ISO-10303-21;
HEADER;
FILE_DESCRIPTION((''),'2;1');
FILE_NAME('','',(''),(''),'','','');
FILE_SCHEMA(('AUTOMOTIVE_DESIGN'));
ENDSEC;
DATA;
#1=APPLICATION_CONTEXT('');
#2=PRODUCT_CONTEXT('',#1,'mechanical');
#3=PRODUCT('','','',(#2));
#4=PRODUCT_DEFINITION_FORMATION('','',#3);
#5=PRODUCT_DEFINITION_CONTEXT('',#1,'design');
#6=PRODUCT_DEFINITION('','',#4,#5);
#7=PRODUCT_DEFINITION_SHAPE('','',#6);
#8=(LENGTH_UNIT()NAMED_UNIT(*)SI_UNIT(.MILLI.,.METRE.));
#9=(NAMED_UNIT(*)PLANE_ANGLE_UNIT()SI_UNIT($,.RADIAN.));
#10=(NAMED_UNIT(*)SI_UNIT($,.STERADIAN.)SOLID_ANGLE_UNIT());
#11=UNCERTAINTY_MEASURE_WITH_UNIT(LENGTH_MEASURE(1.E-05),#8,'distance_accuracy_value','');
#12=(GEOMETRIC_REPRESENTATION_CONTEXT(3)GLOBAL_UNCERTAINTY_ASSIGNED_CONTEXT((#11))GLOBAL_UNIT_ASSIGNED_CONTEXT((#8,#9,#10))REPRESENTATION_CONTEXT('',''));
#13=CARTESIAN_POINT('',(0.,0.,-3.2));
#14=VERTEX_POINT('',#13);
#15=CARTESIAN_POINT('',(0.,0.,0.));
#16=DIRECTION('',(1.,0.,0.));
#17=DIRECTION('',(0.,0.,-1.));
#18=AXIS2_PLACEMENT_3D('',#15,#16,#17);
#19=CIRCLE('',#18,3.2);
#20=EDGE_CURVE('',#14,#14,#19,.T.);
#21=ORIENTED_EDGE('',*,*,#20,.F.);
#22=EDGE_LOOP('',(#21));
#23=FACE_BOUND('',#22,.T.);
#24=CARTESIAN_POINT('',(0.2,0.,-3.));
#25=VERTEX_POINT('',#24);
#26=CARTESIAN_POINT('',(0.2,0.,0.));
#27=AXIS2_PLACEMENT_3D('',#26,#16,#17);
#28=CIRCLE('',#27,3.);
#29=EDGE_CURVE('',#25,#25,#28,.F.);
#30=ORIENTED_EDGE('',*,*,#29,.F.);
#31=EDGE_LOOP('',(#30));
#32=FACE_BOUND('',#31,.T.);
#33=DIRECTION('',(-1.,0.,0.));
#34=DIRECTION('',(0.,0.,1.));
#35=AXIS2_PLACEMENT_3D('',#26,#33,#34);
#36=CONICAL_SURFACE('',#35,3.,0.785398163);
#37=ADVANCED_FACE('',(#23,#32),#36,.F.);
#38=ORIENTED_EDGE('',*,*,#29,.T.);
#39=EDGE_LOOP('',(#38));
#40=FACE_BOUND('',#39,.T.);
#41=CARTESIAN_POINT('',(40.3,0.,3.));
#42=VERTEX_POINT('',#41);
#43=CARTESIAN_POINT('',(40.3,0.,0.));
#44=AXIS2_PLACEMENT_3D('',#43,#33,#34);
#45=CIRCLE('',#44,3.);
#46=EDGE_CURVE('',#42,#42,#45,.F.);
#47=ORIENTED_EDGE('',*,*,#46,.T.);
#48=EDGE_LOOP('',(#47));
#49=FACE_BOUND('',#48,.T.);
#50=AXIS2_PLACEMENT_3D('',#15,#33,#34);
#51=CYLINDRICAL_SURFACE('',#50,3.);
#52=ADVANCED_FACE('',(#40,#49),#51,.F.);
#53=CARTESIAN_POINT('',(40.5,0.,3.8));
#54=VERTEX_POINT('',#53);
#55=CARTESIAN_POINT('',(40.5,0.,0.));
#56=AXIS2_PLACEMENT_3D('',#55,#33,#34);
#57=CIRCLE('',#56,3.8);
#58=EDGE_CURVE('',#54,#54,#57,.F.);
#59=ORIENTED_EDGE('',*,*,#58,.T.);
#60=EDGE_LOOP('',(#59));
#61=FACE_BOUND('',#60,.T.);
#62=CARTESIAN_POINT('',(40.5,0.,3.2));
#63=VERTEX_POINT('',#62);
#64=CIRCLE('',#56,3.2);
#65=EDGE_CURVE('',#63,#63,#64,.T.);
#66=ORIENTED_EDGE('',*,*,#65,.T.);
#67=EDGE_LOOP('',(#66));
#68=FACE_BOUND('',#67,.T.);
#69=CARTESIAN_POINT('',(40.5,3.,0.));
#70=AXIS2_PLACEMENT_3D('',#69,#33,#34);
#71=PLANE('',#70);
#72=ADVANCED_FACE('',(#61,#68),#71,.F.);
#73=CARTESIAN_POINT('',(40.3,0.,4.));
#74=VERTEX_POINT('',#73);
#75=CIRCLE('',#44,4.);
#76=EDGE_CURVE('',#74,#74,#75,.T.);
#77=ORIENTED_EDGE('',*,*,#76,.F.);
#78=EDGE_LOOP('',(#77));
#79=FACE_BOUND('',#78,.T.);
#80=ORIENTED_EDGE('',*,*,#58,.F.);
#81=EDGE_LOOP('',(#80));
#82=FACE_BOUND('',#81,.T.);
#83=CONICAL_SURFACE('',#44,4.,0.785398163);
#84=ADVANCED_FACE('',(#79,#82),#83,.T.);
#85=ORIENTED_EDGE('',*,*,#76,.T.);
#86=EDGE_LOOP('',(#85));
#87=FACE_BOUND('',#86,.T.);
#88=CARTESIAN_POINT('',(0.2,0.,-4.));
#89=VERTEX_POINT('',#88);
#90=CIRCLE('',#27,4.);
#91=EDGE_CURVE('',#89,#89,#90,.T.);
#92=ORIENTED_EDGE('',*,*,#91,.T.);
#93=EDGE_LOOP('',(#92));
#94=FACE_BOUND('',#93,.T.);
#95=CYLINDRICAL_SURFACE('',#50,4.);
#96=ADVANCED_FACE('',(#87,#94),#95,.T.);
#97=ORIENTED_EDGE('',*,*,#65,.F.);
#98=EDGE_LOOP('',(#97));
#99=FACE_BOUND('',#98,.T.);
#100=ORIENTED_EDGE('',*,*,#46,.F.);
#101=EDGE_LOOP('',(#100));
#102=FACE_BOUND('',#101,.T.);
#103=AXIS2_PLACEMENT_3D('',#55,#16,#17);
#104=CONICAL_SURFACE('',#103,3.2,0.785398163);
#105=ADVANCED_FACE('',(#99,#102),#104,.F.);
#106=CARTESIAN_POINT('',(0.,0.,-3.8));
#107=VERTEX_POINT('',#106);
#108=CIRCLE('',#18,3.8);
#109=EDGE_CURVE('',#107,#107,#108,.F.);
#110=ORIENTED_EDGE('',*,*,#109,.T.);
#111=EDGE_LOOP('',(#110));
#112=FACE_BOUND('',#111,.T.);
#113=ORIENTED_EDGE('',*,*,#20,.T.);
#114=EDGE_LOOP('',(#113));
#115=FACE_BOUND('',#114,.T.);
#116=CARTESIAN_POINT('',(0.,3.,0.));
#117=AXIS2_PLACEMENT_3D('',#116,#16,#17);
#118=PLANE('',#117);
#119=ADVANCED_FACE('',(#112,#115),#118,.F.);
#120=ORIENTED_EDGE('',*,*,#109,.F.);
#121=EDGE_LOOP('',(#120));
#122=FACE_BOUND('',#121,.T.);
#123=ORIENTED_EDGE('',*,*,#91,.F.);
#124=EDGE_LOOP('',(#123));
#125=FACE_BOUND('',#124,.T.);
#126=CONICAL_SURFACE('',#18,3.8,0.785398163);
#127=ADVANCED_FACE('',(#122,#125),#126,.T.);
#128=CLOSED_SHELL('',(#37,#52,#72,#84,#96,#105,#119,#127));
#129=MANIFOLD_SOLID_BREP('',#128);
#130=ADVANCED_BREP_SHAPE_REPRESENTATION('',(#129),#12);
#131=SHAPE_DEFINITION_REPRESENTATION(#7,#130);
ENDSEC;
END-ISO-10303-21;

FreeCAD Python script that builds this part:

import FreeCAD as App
import Part
import Sketcher

V = App.Vector


def edges_at(feature, points):
    """Names of the edges that pass closest to the given points."""
    edges = feature.Shape.Edges
    near = lambda p: min(range(len(edges)), key=lambda i: edges[i].distToShape(Part.Vertex(*p))[0])
    return sorted({f"Edge{near(p) + 1}" for p in points})


def add_polygon(sketch, points):
    """Adds a closed chain of lines whose ends are joined by coincident constraints."""
    first, n = sketch.GeometryCount, len(points)
    for a, b in zip(points, points[1:] + points[:1]):
        sketch.addGeometry(Part.LineSegment(App.Vector(*a, 0), App.Vector(*b, 0)), False)
    for i in range(n):
        sketch.addConstraint(Sketcher.Constraint("Coincident", first + i, 2, first + (i + 1) % n, 1))

doc = App.newDocument("Part")
params = doc.addObject("Spreadsheet::Sheet", "Params")
for row, (alias, value) in enumerate([
    ("sketch1_height", "1 mm"),
    ("sketch1_width", "40.5 mm"),
    ("revolution_angle", "360 deg"),
    ("chamfer_size", "0.2 mm"),
], start=1):
    params.set(f"A{row}", alias)
    params.set(f"B{row}", "=" + value)
    params.setAlias(f"B{row}", alias)

body = doc.addObject("PartDesign::Body", "Body")

# Sketch on XY plane
sketch1 = body.newObject("Sketcher::SketchObject", "Sketch")
sketch1.AttachmentSupport = (doc.getObject("XY_Plane"), [""])
sketch1.MapMode = "FlatFace"
add_polygon(sketch1, [(0, 4), (0, 3), (40.5, 3), (40.5, 4)])  # lines 0-3
sketch1.addConstraint(Sketcher.Constraint("Vertical", 0))
sketch1.addConstraint(Sketcher.Constraint("Horizontal", 1))
sketch1.addConstraint(Sketcher.Constraint("Vertical", 2))
sketch1.addConstraint(Sketcher.Constraint("Horizontal", 3))
sketch1.addConstraint(Sketcher.Constraint("PointOnObject", 0, 2, -2))
sketch1.addConstraint(Sketcher.Constraint("DistanceY", 0, 2, 0, 1, 1.0))
sketch1.addConstraint(Sketcher.Constraint("DistanceX", 1, 1, 1, 2, 40.5))
sketch1.addConstraint(Sketcher.Constraint("DistanceY", -1, 1, 0, 2, 3.0))
sketch1.setExpression("Constraints[9]", "Params.sketch1_height")
sketch1.setExpression("Constraints[10]", "Params.sketch1_width")
revolution = body.newObject("PartDesign::Revolution", "Revolution")
revolution.Profile = sketch1
revolution.ReferenceAxis = (sketch1, ["H_Axis"])
revolution.setExpression("Angle", "Params.revolution_angle")
doc.recompute()

chamfer = body.newObject("PartDesign::Chamfer", "Chamfer")
chamfer.Base = (revolution, edges_at(revolution, [
    (0, 0, -3),
    (40.5, 0, -3),
    (40.5, 0, -4),
    (0, 0, -4),
]))
chamfer.setExpression("Size", "Params.chamfer_size")

doc.recompute()
